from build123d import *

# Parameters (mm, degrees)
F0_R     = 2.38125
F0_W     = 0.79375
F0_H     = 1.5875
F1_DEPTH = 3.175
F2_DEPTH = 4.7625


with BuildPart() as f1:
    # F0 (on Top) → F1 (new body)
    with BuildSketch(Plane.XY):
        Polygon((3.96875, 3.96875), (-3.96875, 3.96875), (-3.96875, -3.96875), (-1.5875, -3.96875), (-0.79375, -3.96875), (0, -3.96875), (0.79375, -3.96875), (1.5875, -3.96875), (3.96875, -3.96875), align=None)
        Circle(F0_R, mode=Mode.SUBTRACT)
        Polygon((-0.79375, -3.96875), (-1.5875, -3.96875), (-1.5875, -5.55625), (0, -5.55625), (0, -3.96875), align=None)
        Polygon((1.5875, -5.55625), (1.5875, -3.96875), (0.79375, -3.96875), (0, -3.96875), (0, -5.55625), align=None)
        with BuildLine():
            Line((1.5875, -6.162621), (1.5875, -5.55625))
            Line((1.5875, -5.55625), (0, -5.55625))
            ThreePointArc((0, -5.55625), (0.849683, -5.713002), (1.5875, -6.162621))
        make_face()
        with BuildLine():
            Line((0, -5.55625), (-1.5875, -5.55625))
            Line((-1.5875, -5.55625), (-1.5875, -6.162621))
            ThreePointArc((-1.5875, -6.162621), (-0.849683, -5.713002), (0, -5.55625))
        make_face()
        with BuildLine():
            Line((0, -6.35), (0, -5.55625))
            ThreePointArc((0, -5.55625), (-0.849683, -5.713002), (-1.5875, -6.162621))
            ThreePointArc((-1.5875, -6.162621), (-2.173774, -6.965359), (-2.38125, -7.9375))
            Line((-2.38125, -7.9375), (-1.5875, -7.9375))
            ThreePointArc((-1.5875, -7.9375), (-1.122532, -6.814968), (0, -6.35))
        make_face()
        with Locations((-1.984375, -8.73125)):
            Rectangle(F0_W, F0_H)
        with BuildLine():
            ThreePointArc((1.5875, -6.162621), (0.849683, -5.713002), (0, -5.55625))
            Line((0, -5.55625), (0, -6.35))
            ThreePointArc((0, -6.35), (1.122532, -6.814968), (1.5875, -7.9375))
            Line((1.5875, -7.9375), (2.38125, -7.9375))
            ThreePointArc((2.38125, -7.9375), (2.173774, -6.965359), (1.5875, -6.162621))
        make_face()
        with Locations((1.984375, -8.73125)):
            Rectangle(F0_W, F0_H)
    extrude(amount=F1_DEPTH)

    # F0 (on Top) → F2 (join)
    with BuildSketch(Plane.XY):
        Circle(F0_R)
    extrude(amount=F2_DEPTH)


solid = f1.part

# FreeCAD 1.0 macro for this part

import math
import FreeCAD as App
import Part
import Sketcher
from FreeCAD import Vector
Q = App.Units.Quantity

doc = App.newDocument("Part")
body = doc.addObject("PartDesign::Body", "Body")

# Sketch on XY plane
sketch1 = body.newObject("Sketcher::SketchObject", "Sketch")
sketch1.AttachmentSupport = (doc.getObject("XY_Plane"), [""])
sketch1.MapMode = "FlatFace"
sketch1.addGeometry([
    Part.LineSegment(Vector(3.96875, 3.96875, 0), Vector(-3.96875, 3.96875, 0)),  # 0
    Part.LineSegment(Vector(-3.96875, 3.96875, 0), Vector(-3.96875, -3.96875, 0)),  # 1
    Part.LineSegment(Vector(-3.96875, -3.96875, 0), Vector(-1.5875, -3.96875, 0)),  # 2
    Part.LineSegment(Vector(-1.5875, -3.96875, 0), Vector(-1.5875, -6.162621, 0)),  # 3
    Part.ArcOfCircle(Part.Circle(Vector(0, -7.9375, 0), Vector(0, 0, 1), 2.38125), math.radians(131.810318), math.radians(179.999998)),  # 4
    Part.LineSegment(Vector(-2.38125, -7.9375, 0), Vector(-2.38125, -9.525, 0)),  # 5
    Part.LineSegment(Vector(-2.38125, -9.525, 0), Vector(-1.5875, -9.525, 0)),  # 6
    Part.LineSegment(Vector(-1.5875, -9.525, 0), Vector(-1.5875, -7.9375, 0)),  # 7
    Part.ArcOfCircle(Part.Circle(Vector(0, -7.9375, 0), Vector(0, 0, 1), 1.5875), math.radians(90.000002), math.radians(179.999998)),  # 8
    Part.ArcOfCircle(Part.Circle(Vector(0, -7.9375, 0), Vector(0, 0, 1), 1.5875), math.radians(0.000002), math.radians(89.999998)),  # 9
    Part.LineSegment(Vector(1.5875, -7.9375, 0), Vector(1.5875, -9.525, 0)),  # 10
    Part.LineSegment(Vector(1.5875, -9.525, 0), Vector(2.38125, -9.525, 0)),  # 11
    Part.LineSegment(Vector(2.38125, -9.525, 0), Vector(2.38125, -7.9375, 0)),  # 12
    Part.ArcOfCircle(Part.Circle(Vector(0, -7.9375, 0), Vector(0, 0, 1), 2.38125), math.radians(0.000002), math.radians(48.189682)),  # 13
    Part.LineSegment(Vector(1.5875, -6.162621, 0), Vector(1.5875, -3.96875, 0)),  # 14
    Part.LineSegment(Vector(1.5875, -3.96875, 0), Vector(3.96875, -3.96875, 0)),  # 15
    Part.LineSegment(Vector(3.96875, -3.96875, 0), Vector(3.96875, 3.96875, 0)),  # 16
    Part.Circle(Vector(0, 0, 0), Vector(0, 0, 1), 2.38125),  # 17
], False)
sketch1.addConstraint([
    Sketcher.Constraint("Coincident", 0, 2, 1, 1),
    Sketcher.Constraint("Coincident", 1, 2, 2, 1),
    Sketcher.Constraint("Coincident", 2, 2, 3, 1),
    Sketcher.Constraint("Coincident", 3, 2, 4, 1),
    Sketcher.Constraint("Tangent", 4, 2, 5, 1),
    Sketcher.Constraint("Coincident", 5, 2, 6, 1),
    Sketcher.Constraint("Coincident", 6, 2, 7, 1),
    Sketcher.Constraint("Tangent", 7, 2, 8, 2),
    Sketcher.Constraint("Tangent", 8, 1, 9, 2),
    Sketcher.Constraint("Tangent", 9, 1, 10, 1),
    Sketcher.Constraint("Coincident", 10, 2, 11, 1),
    Sketcher.Constraint("Coincident", 11, 2, 12, 1),
    Sketcher.Constraint("Tangent", 12, 2, 13, 1),
    Sketcher.Constraint("Coincident", 13, 2, 14, 1),
    Sketcher.Constraint("Coincident", 14, 2, 15, 1),
    Sketcher.Constraint("Coincident", 15, 2, 16, 1),
    Sketcher.Constraint("Coincident", 16, 2, 0, 1),
    Sketcher.Constraint("Horizontal", 0),
    Sketcher.Constraint("Vertical", 1),
    Sketcher.Constraint("Horizontal", 2),
    Sketcher.Constraint("Vertical", 3),
    Sketcher.Constraint("Vertical", 5),
    Sketcher.Constraint("Horizontal", 6),
    Sketcher.Constraint("Vertical", 7),
    Sketcher.Constraint("Vertical", 10),
    Sketcher.Constraint("Horizontal", 11),
    Sketcher.Constraint("Vertical", 12),
    Sketcher.Constraint("Vertical", 14),
    Sketcher.Constraint("Horizontal", 15),
    Sketcher.Constraint("Vertical", 16),
    Sketcher.Constraint("Coincident", 17, 3, -1, 1),
    Sketcher.Constraint("Coincident", 8, 3, 4, 3),
    Sketcher.Constraint("Coincident", 13, 3, 4, 3),
    Sketcher.Constraint("Equal", 8, 9),
    Sketcher.Constraint("Equal", 4, 13),
    Sketcher.Constraint("Equal", 13, 17),
    Sketcher.Constraint("Symmetric", 0, 2, 15, 2, -1, 1),
    Sketcher.Constraint("Symmetric", 6, 2, 10, 2, -2),
    Sketcher.Constraint("Symmetric", 2, 2, 14, 2, -2),
    Sketcher.Constraint("PointOnObject", 8, 1, -2),
    Sketcher.Constraint("Vertical", 3, 2, 6, 2),
    Sketcher.Constraint("Equal", 0, 1),
    Sketcher.Constraint("Diameter", 17, Q("0.1875 in")),
    Sketcher.Constraint("Radius", 8, Q("0.0625 in")),
    Sketcher.Constraint("DistanceX", 0, 2, 0, 1, Q("0.3125 in")),
    Sketcher.Constraint("DistanceY", 5, 2, 5, 1, Q("0.0625 in")),
    Sketcher.Constraint("DistanceY", 8, 1, -1, 1, Q("0.25 in")),
])
pad1 = body.newObject("PartDesign::Pad", "Pad")
pad1.Profile = sketch1
pad1.Length = Q("0.125 in")

# Sketch on XY plane
sketch2 = body.newObject("Sketcher::SketchObject", "Sketch001")
sketch2.AttachmentSupport = (doc.getObject("XY_Plane"), [""])
sketch2.MapMode = "FlatFace"
sketch2.addGeometry(Part.Circle(Vector(0, 0, 0), Vector(0, 0, 1), 2.38125), False)
sketch2.addConstraint([
    Sketcher.Constraint("Coincident", 0, 3, -1, 1),
    Sketcher.Constraint("Diameter", 0, Q("0.1875 in")),
])
pad2 = body.newObject("PartDesign::Pad", "Pad001")
pad2.Profile = sketch2
pad2.Length = Q("0.1875 in")

doc.recompute()
